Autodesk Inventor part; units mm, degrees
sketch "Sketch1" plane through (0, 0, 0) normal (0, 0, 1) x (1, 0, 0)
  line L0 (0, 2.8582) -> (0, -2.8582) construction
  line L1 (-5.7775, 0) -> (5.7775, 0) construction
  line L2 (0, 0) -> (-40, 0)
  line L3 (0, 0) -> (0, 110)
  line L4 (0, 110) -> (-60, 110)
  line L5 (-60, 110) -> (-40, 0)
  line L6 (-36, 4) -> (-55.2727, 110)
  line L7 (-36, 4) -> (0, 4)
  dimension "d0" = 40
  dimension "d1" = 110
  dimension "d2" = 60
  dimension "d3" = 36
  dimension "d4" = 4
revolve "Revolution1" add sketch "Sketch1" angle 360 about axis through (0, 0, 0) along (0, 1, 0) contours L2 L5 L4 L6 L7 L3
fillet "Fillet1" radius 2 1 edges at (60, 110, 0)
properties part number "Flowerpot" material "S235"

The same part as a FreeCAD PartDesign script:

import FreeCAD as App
import Part
import Sketcher

V = App.Vector
Q = App.Units.Quantity


def edges_at(feature, points):
    """Names of the edges that pass closest to the given points."""
    edges = feature.Shape.Edges
    near = lambda p: min(range(len(edges)), key=lambda i: edges[i].distToShape(Part.Vertex(*p))[0])
    return sorted({f"Edge{near(p) + 1}" for p in points})

doc = App.newDocument("Part")
body = doc.addObject("PartDesign::Body", "Body")

# Sketch on XY plane
sketch1 = doc.addObject("Sketcher::SketchObject", "Sketch")
body.addObject(sketch1)
sketch1.AttachmentSupport = (doc.XY_Plane, [""])
sketch1.MapMode = "FlatFace"
sketch1.addGeometry([
    Part.LineSegment(V(-40, 0, 0), V(0, 0, 0)),  # 0
    Part.LineSegment(V(0, 0, 0), V(0, 4, 0)),  # 1
    Part.LineSegment(V(0, 4, 0), V(-36, 4, 0)),  # 2
    Part.LineSegment(V(-36, 4, 0), V(-55.2727, 110, 0)),  # 3
    Part.LineSegment(V(-55.2727, 110, 0), V(-60, 110, 0)),  # 4
    Part.LineSegment(V(-60, 110, 0), V(-40, 0, 0)),  # 5
], False)
sketch1.addConstraint([
    Sketcher.Constraint("Coincident", 0, 2, 1, 1),
    Sketcher.Constraint("Coincident", 1, 2, 2, 1),
    Sketcher.Constraint("Coincident", 2, 2, 3, 1),
    Sketcher.Constraint("Coincident", 3, 2, 4, 1),
    Sketcher.Constraint("Coincident", 4, 2, 5, 1),
    Sketcher.Constraint("Coincident", 5, 2, 0, 1),
    Sketcher.Constraint("Horizontal", 0),
    Sketcher.Constraint("Vertical", 1),
    Sketcher.Constraint("Horizontal", 2),
    Sketcher.Constraint("Horizontal", 4),
    Sketcher.Constraint("Coincident", 0, 2, -1, 1),
    Sketcher.Constraint("Parallel", 3, 5),
    Sketcher.Constraint("DistanceX", 0, 1, 0, 2, Q("40 mm")),
    Sketcher.Constraint("DistanceX", 2, 2, 2, 1, Q("36 mm")),
    Sketcher.Constraint("DistanceY", 1, 1, 1, 2, Q("4 mm")),
    Sketcher.Constraint("DistanceY", -1, 1, 3, 2, Q("110 mm")),
    Sketcher.Constraint("DistanceX", 4, 2, -1, 1, Q("60 mm")),
])
revolution = doc.addObject("PartDesign::Revolution", "Revolution")
body.addObject(revolution)
revolution.Profile = sketch1
revolution.ReferenceAxis = (sketch1, ["V_Axis"])
revolution.Angle = 360
doc.recompute()

fillet = doc.addObject("PartDesign::Fillet", "Fillet")
body.addObject(fillet)
fillet.Base = (revolution, edges_at(revolution, [(60, 110, 0)]))
fillet.Radius = 2

doc.recompute()
